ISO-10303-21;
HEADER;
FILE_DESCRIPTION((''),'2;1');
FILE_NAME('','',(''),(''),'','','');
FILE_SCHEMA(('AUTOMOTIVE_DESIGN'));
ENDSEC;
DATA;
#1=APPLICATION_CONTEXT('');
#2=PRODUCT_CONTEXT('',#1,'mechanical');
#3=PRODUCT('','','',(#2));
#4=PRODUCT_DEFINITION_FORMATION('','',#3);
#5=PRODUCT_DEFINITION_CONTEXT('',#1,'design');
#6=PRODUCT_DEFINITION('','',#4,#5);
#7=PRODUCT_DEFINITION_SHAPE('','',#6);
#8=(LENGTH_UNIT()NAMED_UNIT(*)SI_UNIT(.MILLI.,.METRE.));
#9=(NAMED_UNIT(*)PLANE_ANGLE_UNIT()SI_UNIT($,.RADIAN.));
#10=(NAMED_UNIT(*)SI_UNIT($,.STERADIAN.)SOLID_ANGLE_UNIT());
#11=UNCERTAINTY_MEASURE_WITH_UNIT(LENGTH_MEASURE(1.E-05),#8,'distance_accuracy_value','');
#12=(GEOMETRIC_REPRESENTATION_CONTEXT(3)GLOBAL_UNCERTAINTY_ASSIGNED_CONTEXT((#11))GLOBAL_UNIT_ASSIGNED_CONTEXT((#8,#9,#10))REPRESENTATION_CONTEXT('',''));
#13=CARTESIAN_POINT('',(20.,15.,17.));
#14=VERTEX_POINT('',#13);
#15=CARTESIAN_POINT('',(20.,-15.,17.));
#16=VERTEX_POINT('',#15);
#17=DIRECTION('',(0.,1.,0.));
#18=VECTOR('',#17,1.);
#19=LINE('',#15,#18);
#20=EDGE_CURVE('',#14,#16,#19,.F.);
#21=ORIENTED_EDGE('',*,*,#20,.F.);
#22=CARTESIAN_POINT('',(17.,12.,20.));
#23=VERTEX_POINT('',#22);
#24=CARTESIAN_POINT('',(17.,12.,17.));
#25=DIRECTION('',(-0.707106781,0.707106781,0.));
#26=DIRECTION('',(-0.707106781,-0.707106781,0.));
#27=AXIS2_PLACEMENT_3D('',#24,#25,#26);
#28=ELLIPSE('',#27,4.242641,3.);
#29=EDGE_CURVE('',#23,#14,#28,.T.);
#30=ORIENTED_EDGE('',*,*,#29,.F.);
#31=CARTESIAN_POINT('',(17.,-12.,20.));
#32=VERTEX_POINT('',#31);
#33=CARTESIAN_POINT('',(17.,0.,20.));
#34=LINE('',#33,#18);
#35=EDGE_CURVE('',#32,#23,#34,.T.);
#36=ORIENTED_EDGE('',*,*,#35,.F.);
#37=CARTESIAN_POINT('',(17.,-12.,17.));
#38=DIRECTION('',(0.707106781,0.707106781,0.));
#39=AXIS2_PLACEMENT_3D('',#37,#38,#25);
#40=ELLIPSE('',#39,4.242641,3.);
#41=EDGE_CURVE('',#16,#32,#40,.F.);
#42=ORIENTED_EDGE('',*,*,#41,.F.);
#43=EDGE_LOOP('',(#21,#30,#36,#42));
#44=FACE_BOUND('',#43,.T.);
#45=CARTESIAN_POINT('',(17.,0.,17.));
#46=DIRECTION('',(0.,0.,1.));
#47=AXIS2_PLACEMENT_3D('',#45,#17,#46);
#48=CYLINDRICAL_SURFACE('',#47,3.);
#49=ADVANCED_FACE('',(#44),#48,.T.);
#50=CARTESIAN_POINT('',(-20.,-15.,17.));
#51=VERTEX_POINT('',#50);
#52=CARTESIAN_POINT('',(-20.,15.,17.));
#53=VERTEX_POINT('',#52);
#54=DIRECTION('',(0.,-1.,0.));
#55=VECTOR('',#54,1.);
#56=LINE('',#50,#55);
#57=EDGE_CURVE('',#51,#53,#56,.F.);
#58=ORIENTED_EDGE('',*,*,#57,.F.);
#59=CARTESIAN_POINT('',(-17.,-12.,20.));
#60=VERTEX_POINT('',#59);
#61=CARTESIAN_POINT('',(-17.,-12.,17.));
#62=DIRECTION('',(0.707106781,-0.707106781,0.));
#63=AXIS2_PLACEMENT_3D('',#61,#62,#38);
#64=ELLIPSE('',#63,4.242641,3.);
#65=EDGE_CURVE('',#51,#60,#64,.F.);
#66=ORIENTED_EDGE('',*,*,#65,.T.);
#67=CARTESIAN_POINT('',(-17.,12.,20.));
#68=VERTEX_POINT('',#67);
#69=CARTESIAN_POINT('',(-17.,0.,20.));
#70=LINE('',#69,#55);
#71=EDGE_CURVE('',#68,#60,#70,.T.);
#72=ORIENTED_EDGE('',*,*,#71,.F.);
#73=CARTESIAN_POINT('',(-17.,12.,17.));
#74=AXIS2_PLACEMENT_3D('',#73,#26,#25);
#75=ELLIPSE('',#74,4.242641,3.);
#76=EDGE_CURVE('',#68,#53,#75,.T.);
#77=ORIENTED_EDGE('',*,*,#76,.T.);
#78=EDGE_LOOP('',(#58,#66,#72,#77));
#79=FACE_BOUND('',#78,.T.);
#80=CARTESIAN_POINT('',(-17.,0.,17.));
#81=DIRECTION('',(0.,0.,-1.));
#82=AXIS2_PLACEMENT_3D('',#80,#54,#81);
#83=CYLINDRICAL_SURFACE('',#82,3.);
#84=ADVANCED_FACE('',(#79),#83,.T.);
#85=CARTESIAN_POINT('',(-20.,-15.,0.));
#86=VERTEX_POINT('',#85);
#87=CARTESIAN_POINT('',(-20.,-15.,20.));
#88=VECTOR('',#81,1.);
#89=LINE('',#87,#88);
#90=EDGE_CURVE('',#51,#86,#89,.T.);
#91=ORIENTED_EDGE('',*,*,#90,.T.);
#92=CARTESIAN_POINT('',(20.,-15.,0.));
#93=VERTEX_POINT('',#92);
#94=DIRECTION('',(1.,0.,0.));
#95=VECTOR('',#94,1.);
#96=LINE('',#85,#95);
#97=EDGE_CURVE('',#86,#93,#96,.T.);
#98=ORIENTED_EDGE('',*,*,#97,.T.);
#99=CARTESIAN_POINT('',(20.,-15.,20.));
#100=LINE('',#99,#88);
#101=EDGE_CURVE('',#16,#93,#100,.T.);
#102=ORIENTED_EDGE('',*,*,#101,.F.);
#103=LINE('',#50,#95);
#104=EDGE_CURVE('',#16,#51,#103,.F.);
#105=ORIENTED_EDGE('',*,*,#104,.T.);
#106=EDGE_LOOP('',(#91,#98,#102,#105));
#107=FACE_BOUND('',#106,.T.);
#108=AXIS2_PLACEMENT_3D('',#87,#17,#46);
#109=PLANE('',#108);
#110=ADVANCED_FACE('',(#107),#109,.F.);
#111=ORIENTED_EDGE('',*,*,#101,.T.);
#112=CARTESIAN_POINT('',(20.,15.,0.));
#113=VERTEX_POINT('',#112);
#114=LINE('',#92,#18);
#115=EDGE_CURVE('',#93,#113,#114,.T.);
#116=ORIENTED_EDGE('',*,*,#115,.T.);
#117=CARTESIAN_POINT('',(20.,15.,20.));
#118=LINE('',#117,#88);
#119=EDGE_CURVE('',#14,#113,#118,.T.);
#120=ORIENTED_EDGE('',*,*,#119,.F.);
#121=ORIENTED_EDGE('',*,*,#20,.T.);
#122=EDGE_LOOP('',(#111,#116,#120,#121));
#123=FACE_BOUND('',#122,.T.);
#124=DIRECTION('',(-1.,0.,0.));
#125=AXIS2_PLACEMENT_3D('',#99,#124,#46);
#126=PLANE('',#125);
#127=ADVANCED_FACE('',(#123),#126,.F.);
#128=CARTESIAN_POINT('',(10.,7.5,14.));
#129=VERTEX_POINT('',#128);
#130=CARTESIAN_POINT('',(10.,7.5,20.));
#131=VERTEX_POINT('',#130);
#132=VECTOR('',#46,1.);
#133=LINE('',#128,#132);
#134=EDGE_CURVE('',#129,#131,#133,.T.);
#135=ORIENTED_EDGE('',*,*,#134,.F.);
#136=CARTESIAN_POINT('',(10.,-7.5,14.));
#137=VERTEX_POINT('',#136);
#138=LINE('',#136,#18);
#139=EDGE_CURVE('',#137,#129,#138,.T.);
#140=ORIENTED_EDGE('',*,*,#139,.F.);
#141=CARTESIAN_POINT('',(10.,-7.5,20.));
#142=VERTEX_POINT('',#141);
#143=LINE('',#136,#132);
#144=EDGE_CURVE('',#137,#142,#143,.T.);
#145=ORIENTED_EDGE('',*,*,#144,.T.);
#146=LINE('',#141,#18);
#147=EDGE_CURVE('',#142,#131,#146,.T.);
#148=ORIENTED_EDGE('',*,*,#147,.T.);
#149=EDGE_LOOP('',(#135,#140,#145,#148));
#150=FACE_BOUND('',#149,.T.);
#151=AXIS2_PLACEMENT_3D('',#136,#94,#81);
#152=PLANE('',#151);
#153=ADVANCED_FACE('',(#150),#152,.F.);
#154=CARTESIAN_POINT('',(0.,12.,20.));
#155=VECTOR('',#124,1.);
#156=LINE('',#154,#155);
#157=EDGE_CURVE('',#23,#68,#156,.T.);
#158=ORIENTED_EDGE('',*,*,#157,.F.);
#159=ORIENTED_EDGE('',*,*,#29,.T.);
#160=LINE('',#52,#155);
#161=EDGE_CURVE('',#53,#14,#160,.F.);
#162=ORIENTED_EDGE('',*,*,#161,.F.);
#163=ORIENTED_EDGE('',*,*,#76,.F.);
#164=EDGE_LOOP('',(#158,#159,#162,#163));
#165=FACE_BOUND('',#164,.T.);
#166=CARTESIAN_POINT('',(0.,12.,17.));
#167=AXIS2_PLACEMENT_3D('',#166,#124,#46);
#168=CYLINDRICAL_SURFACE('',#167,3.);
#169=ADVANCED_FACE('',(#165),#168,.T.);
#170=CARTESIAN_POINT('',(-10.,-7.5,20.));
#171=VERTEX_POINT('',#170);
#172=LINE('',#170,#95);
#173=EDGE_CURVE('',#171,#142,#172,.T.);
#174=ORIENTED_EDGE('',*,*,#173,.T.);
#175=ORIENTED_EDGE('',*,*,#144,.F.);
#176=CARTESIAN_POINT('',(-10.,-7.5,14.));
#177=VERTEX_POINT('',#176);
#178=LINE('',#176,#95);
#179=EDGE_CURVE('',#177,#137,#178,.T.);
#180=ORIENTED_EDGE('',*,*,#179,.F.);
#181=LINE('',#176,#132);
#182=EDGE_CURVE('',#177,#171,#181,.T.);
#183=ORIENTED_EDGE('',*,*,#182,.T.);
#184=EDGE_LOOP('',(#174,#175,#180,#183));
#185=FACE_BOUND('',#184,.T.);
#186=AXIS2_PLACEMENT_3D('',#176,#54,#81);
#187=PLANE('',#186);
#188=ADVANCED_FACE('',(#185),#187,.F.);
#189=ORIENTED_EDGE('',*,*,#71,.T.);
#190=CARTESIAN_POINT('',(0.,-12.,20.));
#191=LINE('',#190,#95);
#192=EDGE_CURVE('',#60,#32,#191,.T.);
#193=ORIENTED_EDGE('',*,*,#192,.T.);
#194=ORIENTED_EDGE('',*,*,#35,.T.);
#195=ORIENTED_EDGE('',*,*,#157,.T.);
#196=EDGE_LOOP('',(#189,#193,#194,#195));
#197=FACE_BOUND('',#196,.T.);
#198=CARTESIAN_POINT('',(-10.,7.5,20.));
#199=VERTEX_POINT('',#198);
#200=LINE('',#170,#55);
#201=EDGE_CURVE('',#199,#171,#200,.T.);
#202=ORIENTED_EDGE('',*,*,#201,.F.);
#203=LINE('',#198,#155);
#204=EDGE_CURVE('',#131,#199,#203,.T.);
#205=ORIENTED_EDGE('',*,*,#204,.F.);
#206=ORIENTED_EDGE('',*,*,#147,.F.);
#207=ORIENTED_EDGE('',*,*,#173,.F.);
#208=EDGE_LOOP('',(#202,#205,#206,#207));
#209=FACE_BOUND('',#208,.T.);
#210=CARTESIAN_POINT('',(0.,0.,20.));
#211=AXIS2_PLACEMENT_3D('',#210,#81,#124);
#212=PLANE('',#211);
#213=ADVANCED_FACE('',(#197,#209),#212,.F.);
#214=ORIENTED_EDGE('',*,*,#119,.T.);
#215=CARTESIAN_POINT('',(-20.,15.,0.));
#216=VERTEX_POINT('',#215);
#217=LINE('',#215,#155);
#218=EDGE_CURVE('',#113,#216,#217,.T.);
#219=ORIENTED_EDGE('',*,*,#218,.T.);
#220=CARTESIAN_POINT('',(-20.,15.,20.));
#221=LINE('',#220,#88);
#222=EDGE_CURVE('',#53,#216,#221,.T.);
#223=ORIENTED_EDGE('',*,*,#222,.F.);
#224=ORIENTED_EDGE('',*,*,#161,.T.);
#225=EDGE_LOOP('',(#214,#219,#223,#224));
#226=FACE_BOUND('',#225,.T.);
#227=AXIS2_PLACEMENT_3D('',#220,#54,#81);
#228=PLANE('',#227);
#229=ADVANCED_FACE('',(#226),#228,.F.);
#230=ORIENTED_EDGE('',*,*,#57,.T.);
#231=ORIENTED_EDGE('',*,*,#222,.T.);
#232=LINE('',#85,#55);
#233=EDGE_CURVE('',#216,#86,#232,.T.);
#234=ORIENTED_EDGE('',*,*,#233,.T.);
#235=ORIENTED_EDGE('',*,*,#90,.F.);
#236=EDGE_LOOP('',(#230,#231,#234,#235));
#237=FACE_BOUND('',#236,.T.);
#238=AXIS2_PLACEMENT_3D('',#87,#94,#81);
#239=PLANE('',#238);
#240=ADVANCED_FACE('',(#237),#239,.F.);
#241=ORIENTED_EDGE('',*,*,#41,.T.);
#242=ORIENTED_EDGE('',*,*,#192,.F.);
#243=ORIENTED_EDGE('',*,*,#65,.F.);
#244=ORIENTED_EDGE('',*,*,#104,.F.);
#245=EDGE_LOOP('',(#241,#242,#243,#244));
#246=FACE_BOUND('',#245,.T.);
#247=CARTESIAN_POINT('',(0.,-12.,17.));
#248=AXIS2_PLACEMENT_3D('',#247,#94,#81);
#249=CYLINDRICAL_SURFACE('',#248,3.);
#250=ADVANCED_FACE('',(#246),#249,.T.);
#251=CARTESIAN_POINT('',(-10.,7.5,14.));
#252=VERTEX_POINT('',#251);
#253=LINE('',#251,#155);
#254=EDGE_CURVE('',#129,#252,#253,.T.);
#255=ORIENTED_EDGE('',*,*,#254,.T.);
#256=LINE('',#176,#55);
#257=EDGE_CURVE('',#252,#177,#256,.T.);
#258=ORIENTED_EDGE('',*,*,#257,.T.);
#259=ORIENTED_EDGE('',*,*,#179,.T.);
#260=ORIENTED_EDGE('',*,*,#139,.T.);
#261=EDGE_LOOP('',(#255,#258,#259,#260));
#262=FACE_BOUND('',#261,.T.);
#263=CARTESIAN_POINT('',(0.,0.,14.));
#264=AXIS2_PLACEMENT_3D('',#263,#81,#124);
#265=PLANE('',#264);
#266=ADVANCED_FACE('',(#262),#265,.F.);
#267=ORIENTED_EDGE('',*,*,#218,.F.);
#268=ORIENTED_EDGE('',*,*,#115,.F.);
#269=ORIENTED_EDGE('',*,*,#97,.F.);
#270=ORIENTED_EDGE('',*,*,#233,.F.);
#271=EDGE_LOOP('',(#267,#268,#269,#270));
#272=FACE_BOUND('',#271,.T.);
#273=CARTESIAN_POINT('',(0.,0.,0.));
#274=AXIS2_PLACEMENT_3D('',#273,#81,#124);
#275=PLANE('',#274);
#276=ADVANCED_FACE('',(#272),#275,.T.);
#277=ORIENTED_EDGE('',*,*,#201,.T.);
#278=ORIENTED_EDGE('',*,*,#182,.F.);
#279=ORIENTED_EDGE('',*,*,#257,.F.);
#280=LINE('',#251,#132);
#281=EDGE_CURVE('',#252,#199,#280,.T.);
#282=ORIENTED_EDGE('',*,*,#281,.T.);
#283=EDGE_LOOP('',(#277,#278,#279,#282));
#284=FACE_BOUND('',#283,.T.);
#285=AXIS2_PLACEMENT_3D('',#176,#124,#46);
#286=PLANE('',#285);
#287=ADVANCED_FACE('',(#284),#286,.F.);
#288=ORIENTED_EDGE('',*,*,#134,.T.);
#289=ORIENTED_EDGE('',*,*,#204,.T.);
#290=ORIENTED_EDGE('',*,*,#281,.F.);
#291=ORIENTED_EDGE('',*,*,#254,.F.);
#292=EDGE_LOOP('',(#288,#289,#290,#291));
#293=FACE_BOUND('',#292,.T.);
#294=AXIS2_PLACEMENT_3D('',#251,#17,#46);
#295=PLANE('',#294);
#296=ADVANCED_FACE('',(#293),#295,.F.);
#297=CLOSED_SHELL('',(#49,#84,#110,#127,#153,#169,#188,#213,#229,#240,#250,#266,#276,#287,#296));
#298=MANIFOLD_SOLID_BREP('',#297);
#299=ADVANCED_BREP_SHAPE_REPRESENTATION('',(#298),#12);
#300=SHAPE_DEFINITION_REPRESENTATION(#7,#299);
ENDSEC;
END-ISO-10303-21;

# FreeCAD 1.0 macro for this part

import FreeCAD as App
import Part
import Sketcher
Q = App.Units.Quantity


def edges_at(feature, points):
    """Names of the edges that pass closest to the given points."""
    edges = feature.Shape.Edges
    near = lambda p: min(range(len(edges)), key=lambda i: edges[i].distToShape(Part.Vertex(*p))[0])
    return sorted({f"Edge{near(p) + 1}" for p in points})

doc = App.newDocument("Part")
params = doc.addObject("Spreadsheet::Sheet", "Params")
for row, (alias, value) in enumerate([
    ("sketch1_width", "40 mm"),
    ("sketch1_height", "30 mm"),
    ("pad1_length", "20 mm"),
    ("sketch2_width", "20 mm"),
    ("sketch2_height", "15 mm"),
    ("pocket1_length", "6 mm"),
    ("fillet_radius", "3 mm"),
], start=1):
    params.set(f"A{row}", alias)
    params.set(f"B{row}", "=" + value)
    params.setAlias(f"B{row}", alias)

body = doc.addObject("PartDesign::Body", "Body")

# Sketch on XY plane
sketch1 = body.newObject("Sketcher::SketchObject", "Sketch")
sketch1.AttachmentSupport = (doc.getObject("XY_Plane"), [""])
sketch1.MapMode = "FlatFace"
sketch1.addGeometry(Part.LineSegment(App.Vector(-20, 15, 0), App.Vector(-20, -15, 0)), False)
sketch1.addGeometry(Part.LineSegment(App.Vector(-20, -15, 0), App.Vector(20, -15, 0)), False)
sketch1.addGeometry(Part.LineSegment(App.Vector(20, -15, 0), App.Vector(20, 15, 0)), False)
sketch1.addGeometry(Part.LineSegment(App.Vector(20, 15, 0), App.Vector(-20, 15, 0)), False)
sketch1.addConstraint(Sketcher.Constraint("Coincident", 0, 2, 1, 1))
sketch1.addConstraint(Sketcher.Constraint("Coincident", 1, 2, 2, 1))
sketch1.addConstraint(Sketcher.Constraint("Coincident", 2, 2, 3, 1))
sketch1.addConstraint(Sketcher.Constraint("Coincident", 3, 2, 0, 1))
sketch1.addConstraint(Sketcher.Constraint("Vertical", 0))
sketch1.addConstraint(Sketcher.Constraint("Horizontal", 1))
sketch1.addConstraint(Sketcher.Constraint("Vertical", 2))
sketch1.addConstraint(Sketcher.Constraint("Horizontal", 3))
sketch1.addConstraint(Sketcher.Constraint("Symmetric", 0, 2, 2, 2, -1, 1))
sketch1.addConstraint(Sketcher.Constraint("DistanceX", 1, 1, 1, 2, Q("40 mm")))
sketch1.addConstraint(Sketcher.Constraint("DistanceY", 0, 2, 0, 1, Q("30 mm")))
sketch1.setExpression("Constraints[9]", "Params.sketch1_width")
sketch1.setExpression("Constraints[10]", "Params.sketch1_height")
pad1 = body.newObject("PartDesign::Pad", "Pad")
pad1.Profile = sketch1
pad1.setExpression("Length", "Params.pad1_length")

# Sketch on XY plane
sketch2 = body.newObject("Sketcher::SketchObject", "Sketch001")
sketch2.AttachmentSupport = (doc.getObject("XY_Plane"), [""])
sketch2.MapMode = "FlatFace"
sketch2.AttachmentOffset = App.Placement(App.Vector(0, 0, 20), App.Rotation())
sketch2.addGeometry(Part.LineSegment(App.Vector(-10, 7.5, 0), App.Vector(-10, -7.5, 0)), False)
sketch2.addGeometry(Part.LineSegment(App.Vector(-10, -7.5, 0), App.Vector(10, -7.5, 0)), False)
sketch2.addGeometry(Part.LineSegment(App.Vector(10, -7.5, 0), App.Vector(10, 7.5, 0)), False)
sketch2.addGeometry(Part.LineSegment(App.Vector(10, 7.5, 0), App.Vector(-10, 7.5, 0)), False)
sketch2.addConstraint(Sketcher.Constraint("Coincident", 0, 2, 1, 1))
sketch2.addConstraint(Sketcher.Constraint("Coincident", 1, 2, 2, 1))
sketch2.addConstraint(Sketcher.Constraint("Coincident", 2, 2, 3, 1))
sketch2.addConstraint(Sketcher.Constraint("Coincident", 3, 2, 0, 1))
sketch2.addConstraint(Sketcher.Constraint("Vertical", 0))
sketch2.addConstraint(Sketcher.Constraint("Horizontal", 1))
sketch2.addConstraint(Sketcher.Constraint("Vertical", 2))
sketch2.addConstraint(Sketcher.Constraint("Horizontal", 3))
sketch2.addConstraint(Sketcher.Constraint("Symmetric", 0, 2, 2, 2, -1, 1))
sketch2.addConstraint(Sketcher.Constraint("DistanceX", 1, 1, 1, 2, Q("20 mm")))
sketch2.addConstraint(Sketcher.Constraint("DistanceY", 0, 2, 0, 1, Q("15 mm")))
sketch2.setExpression("Constraints[9]", "Params.sketch2_width")
sketch2.setExpression("Constraints[10]", "Params.sketch2_height")
pocket1 = body.newObject("PartDesign::Pocket", "Pocket")
pocket1.Profile = sketch2
pocket1.setExpression("Length", "Params.pocket1_length")
doc.recompute()

fillet = body.newObject("PartDesign::Fillet", "Fillet")
fillet.Base = (pocket1, edges_at(pocket1, [
    (20, 0, 20),
    (0, 15, 20),
    (-20, 0, 20),
    (0, -15, 20),
]))
fillet.setExpression("Radius", "Params.fillet_radius")

doc.recompute()
